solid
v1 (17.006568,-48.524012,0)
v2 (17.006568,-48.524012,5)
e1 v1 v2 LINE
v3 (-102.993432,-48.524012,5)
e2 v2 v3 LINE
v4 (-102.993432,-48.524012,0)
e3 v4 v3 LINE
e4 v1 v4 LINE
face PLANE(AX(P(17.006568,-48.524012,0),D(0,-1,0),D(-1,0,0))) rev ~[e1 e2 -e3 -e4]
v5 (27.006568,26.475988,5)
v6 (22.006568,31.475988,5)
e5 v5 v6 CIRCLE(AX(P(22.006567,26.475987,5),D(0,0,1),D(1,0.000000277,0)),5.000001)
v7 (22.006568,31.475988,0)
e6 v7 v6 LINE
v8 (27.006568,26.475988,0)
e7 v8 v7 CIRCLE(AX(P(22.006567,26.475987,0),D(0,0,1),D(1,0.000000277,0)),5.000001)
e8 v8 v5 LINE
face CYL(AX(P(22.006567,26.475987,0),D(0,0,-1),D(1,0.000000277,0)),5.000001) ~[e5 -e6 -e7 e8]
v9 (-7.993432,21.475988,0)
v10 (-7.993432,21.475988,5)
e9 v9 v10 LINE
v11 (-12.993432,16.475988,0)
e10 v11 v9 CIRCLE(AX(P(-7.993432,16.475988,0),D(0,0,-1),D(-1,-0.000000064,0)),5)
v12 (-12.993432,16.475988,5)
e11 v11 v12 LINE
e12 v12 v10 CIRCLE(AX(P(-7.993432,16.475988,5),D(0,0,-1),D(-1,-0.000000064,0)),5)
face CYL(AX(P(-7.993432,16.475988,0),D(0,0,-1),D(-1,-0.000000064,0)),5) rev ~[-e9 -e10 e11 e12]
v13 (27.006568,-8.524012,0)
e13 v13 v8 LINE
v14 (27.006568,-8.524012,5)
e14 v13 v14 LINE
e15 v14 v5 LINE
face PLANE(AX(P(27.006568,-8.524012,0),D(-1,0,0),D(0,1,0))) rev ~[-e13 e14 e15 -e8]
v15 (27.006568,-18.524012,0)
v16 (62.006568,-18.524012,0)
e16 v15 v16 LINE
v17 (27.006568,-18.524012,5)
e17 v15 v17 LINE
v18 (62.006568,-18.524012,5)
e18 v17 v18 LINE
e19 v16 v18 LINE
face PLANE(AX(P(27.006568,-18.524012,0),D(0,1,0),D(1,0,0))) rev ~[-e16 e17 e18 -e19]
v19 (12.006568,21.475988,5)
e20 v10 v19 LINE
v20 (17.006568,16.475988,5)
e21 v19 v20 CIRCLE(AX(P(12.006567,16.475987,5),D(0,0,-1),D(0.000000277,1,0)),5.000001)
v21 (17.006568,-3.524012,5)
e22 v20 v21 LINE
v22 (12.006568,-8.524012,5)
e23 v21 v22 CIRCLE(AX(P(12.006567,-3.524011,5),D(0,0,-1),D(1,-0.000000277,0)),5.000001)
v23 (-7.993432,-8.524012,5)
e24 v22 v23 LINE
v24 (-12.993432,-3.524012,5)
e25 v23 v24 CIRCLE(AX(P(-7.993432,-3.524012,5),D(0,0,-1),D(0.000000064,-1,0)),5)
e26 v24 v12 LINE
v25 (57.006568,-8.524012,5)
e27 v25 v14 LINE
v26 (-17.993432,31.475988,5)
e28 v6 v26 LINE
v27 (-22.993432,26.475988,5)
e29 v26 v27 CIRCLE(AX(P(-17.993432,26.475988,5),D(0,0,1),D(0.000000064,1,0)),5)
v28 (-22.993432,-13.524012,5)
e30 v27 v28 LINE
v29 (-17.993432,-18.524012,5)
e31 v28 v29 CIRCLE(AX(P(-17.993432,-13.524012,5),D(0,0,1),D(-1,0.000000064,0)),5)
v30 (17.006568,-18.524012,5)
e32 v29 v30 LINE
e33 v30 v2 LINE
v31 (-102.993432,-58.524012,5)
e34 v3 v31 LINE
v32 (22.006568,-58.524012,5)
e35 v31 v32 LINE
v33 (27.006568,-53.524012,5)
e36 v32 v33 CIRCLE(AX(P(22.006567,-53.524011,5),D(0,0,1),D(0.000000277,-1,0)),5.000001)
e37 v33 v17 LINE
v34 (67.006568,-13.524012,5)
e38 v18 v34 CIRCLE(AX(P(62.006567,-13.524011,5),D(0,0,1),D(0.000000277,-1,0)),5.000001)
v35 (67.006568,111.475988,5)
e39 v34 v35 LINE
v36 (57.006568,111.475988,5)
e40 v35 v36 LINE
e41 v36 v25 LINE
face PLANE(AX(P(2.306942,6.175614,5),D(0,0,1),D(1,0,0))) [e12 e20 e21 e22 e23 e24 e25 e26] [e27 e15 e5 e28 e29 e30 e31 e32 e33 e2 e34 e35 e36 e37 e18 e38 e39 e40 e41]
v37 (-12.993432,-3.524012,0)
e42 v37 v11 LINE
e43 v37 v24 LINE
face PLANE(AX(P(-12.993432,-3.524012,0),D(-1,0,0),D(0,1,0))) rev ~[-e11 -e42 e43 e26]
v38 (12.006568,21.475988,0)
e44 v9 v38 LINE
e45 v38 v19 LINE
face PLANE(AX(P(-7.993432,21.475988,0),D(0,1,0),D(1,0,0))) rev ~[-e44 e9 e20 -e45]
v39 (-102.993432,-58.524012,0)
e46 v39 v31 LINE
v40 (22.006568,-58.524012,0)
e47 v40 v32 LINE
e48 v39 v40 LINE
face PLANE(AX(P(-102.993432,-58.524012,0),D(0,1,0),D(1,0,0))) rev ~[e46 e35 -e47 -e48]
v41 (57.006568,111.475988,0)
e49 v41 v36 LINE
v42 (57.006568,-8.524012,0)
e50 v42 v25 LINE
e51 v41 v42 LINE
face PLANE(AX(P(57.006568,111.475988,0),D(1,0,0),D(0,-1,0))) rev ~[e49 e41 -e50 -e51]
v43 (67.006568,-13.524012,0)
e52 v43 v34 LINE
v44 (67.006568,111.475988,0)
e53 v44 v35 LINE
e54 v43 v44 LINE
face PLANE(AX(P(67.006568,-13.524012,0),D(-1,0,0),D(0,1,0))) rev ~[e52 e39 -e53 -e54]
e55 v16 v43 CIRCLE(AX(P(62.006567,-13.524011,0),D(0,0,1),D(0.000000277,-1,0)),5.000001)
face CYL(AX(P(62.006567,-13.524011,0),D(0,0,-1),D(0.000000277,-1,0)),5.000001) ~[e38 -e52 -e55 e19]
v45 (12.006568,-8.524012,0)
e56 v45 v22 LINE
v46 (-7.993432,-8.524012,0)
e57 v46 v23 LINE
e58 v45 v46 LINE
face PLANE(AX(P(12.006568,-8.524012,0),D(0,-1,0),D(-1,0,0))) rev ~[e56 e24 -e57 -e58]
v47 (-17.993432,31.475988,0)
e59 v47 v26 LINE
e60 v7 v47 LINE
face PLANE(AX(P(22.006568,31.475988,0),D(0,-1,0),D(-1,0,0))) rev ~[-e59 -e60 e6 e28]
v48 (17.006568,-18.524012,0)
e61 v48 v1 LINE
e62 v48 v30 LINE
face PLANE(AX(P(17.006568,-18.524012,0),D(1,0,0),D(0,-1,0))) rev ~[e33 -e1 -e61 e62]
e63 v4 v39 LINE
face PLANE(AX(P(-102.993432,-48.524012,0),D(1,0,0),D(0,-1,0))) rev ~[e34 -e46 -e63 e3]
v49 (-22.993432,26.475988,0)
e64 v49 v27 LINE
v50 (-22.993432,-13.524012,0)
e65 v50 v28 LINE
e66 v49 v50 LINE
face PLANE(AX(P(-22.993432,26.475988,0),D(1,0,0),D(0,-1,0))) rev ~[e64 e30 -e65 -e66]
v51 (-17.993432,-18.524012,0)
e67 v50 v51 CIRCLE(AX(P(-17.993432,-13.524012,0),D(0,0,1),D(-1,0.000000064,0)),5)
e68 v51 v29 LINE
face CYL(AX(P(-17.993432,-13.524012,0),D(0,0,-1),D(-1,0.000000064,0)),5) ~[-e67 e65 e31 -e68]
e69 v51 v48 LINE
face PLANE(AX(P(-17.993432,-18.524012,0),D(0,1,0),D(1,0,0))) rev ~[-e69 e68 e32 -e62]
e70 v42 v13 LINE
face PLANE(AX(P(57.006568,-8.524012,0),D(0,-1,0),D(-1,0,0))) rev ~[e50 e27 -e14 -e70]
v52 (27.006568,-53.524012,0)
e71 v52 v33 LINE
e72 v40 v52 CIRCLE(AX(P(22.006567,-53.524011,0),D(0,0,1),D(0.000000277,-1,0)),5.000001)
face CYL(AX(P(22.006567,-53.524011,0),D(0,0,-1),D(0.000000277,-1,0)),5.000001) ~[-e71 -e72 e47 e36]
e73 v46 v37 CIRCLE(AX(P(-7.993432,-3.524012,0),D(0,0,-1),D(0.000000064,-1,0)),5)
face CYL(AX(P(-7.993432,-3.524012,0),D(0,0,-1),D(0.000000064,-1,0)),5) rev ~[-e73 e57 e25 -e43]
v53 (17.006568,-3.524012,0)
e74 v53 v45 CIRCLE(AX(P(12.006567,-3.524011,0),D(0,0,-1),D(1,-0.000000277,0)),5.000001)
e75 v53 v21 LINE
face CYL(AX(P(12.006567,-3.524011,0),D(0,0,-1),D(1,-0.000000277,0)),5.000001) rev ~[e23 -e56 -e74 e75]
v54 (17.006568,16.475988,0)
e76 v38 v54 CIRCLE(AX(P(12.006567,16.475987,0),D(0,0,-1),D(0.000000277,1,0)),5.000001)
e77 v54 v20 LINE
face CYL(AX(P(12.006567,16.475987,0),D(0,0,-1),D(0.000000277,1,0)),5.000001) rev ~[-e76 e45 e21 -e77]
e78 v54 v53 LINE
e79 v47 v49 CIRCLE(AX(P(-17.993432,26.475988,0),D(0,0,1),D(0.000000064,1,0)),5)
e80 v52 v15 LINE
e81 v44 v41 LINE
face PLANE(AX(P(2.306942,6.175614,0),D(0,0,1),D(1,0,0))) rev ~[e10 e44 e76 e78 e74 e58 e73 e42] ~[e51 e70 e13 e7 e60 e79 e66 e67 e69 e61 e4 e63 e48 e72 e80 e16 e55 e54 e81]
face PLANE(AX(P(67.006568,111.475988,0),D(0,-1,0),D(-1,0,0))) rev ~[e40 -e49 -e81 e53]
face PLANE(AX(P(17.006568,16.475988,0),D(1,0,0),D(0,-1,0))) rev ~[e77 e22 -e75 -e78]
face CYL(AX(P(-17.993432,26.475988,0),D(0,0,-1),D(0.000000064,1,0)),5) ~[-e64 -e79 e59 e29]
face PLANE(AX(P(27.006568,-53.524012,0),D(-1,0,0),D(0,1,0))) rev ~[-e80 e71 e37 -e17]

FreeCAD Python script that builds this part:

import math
import FreeCAD as App
import Part
import Sketcher
from FreeCAD import Vector

doc = App.newDocument("Part")
body = doc.addObject("PartDesign::Body", "Body")

# Sketch on XY plane
sketch1 = body.newObject("Sketcher::SketchObject", "Sketch")
sketch1.AttachmentSupport = (doc.getObject("XY_Plane"), [""])
sketch1.MapMode = "FlatFace"
sketch1.addGeometry([
    Part.LineSegment(Vector(22, 31.5, 0), Vector(-18, 31.5, 0)),  # 0
    Part.ArcOfCircle(Part.Circle(Vector(-18, 26.5, 0), Vector(0, 0, 1), 5), math.radians(90), math.radians(180)),  # 1
    Part.LineSegment(Vector(-23, 26.5, 0), Vector(-23, -13.5, 0)),  # 2
    Part.ArcOfCircle(Part.Circle(Vector(-18, -13.5, 0), Vector(0, 0, 1), 5), math.radians(180), math.radians(270)),  # 3
    Part.LineSegment(Vector(-18, -18.5, 0), Vector(17, -18.5, 0)),  # 4
    Part.LineSegment(Vector(17, -18.5, 0), Vector(17, -48.5, 0)),  # 5
    Part.LineSegment(Vector(17, -48.5, 0), Vector(-103, -48.5, 0)),  # 6
    Part.LineSegment(Vector(-103, -48.5, 0), Vector(-103, -58.5, 0)),  # 7
    Part.LineSegment(Vector(-103, -58.5, 0), Vector(22, -58.5, 0)),  # 8
    Part.ArcOfCircle(Part.Circle(Vector(22, -53.5, 0), Vector(0, 0, 1), 5), math.radians(-90), math.radians(0)),  # 9
    Part.LineSegment(Vector(27, -53.5, 0), Vector(27, -18.5, 0)),  # 10
    Part.LineSegment(Vector(27, -18.5, 0), Vector(62, -18.5, 0)),  # 11
    Part.ArcOfCircle(Part.Circle(Vector(62, -13.5, 0), Vector(0, 0, 1), 5), math.radians(-90), math.radians(0)),  # 12
    Part.LineSegment(Vector(67, -13.5, 0), Vector(67, 111.5, 0)),  # 13
    Part.LineSegment(Vector(67, 111.5, 0), Vector(57, 111.5, 0)),  # 14
    Part.LineSegment(Vector(57, 111.5, 0), Vector(57, -8.5, 0)),  # 15
    Part.LineSegment(Vector(57, -8.5, 0), Vector(27, -8.5, 0)),  # 16
    Part.LineSegment(Vector(27, -8.5, 0), Vector(27, 26.5, 0)),  # 17
    Part.ArcOfCircle(Part.Circle(Vector(22, 26.5, 0), Vector(0, 0, 1), 5), math.radians(0), math.radians(90)),  # 18
    Part.LineSegment(Vector(-13, -3.5, 0), Vector(-13, 16.5, 0)),  # 19
    Part.ArcOfCircle(Part.Circle(Vector(-8, 16.5, 0), Vector(0, 0, 1), 5), math.radians(90), math.radians(180)),  # 20
    Part.LineSegment(Vector(-8, 21.5, 0), Vector(12, 21.5, 0)),  # 21
    Part.ArcOfCircle(Part.Circle(Vector(12, 16.5, 0), Vector(0, 0, 1), 5), math.radians(0), math.radians(90)),  # 22
    Part.LineSegment(Vector(17, 16.5, 0), Vector(17, -3.5, 0)),  # 23
    Part.ArcOfCircle(Part.Circle(Vector(12, -3.5, 0), Vector(0, 0, 1), 5), math.radians(-90), math.radians(0)),  # 24
    Part.LineSegment(Vector(12, -8.5, 0), Vector(-8, -8.5, 0)),  # 25
    Part.ArcOfCircle(Part.Circle(Vector(-8, -3.5, 0), Vector(0, 0, 1), 5), math.radians(180), math.radians(270)),  # 26
], False)
sketch1.addConstraint([
    Sketcher.Constraint("Tangent", 0, 2, 1, 1),
    Sketcher.Constraint("Tangent", 1, 2, 2, 1),
    Sketcher.Constraint("Tangent", 2, 2, 3, 1),
    Sketcher.Constraint("Tangent", 3, 2, 4, 1),
    Sketcher.Constraint("Coincident", 4, 2, 5, 1),
    Sketcher.Constraint("Coincident", 5, 2, 6, 1),
    Sketcher.Constraint("Coincident", 6, 2, 7, 1),
    Sketcher.Constraint("Coincident", 7, 2, 8, 1),
    Sketcher.Constraint("Tangent", 8, 2, 9, 1),
    Sketcher.Constraint("Tangent", 9, 2, 10, 1),
    Sketcher.Constraint("Coincident", 10, 2, 11, 1),
    Sketcher.Constraint("Tangent", 11, 2, 12, 1),
    Sketcher.Constraint("Tangent", 12, 2, 13, 1),
    Sketcher.Constraint("Coincident", 13, 2, 14, 1),
    Sketcher.Constraint("Coincident", 14, 2, 15, 1),
    Sketcher.Constraint("Coincident", 15, 2, 16, 1),
    Sketcher.Constraint("Coincident", 16, 2, 17, 1),
    Sketcher.Constraint("Tangent", 17, 2, 18, 1),
    Sketcher.Constraint("Tangent", 18, 2, 0, 1),
    Sketcher.Constraint("Tangent", 19, 2, 20, 2),
    Sketcher.Constraint("Tangent", 20, 1, 21, 1),
    Sketcher.Constraint("Tangent", 21, 2, 22, 2),
    Sketcher.Constraint("Tangent", 22, 1, 23, 1),
    Sketcher.Constraint("Tangent", 23, 2, 24, 2),
    Sketcher.Constraint("Tangent", 24, 1, 25, 1),
    Sketcher.Constraint("Tangent", 25, 2, 26, 2),
    Sketcher.Constraint("Tangent", 26, 1, 19, 1),
    Sketcher.Constraint("Horizontal", 0),
    Sketcher.Constraint("Vertical", 2),
    Sketcher.Constraint("Horizontal", 4),
    Sketcher.Constraint("Vertical", 5),
    Sketcher.Constraint("Horizontal", 6),
    Sketcher.Constraint("Vertical", 7),
    Sketcher.Constraint("Horizontal", 8),
    Sketcher.Constraint("Vertical", 10),
    Sketcher.Constraint("Horizontal", 11),
    Sketcher.Constraint("Vertical", 13),
    Sketcher.Constraint("Horizontal", 14),
    Sketcher.Constraint("Vertical", 15),
    Sketcher.Constraint("Horizontal", 16),
    Sketcher.Constraint("Vertical", 17),
    Sketcher.Constraint("Vertical", 19),
    Sketcher.Constraint("Horizontal", 21),
    Sketcher.Constraint("Vertical", 23),
    Sketcher.Constraint("Horizontal", 25),
    Sketcher.Constraint("Equal", 1, 3),
    Sketcher.Constraint("Equal", 3, 9),
    Sketcher.Constraint("Equal", 9, 12),
    Sketcher.Constraint("Equal", 12, 18),
    Sketcher.Constraint("Equal", 18, 20),
    Sketcher.Constraint("Equal", 20, 22),
    Sketcher.Constraint("Equal", 22, 24),
    Sketcher.Constraint("Equal", 24, 26),
    Sketcher.Constraint("Horizontal", 3, 3, 12, 3),
    Sketcher.Constraint("Horizontal", 16, 2, 24, 1),
    Sketcher.Constraint("Vertical", 9, 3, 18, 3),
    Sketcher.Constraint("Vertical", 5, 2, 22, 1),
    Sketcher.Constraint("Equal", 4, 11),
    Sketcher.Constraint("Equal", 0, 2),
    Sketcher.Constraint("Equal", 16, 5),
    Sketcher.Constraint("Equal", 14, 7),
    Sketcher.Constraint("Equal", 8, 13),
    Sketcher.Constraint("Equal", 6, 15),
    Sketcher.Constraint("Equal", 25, 19),
    Sketcher.Constraint("Radius", 1, 5.0),
    Sketcher.Constraint("DistanceX", 0, 2, 0, 1, 40.0),
    Sketcher.Constraint("DistanceX", 4, 1, 4, 2, 35.0),
    Sketcher.Constraint("DistanceX", 6, 2, 6, 1, 120.0),
    Sketcher.Constraint("DistanceX", 14, 2, 14, 1, 10.0),
    Sketcher.Constraint("DistanceX", 21, 1, 21, 2, 20.0),
    Sketcher.Constraint("DistanceY", -1, 1, 1, 3, 26.475988),
    Sketcher.Constraint("DistanceX", 0, 2, -1, 1, 17.993432),
])
pad1 = body.newObject("PartDesign::Pad", "Pad")
pad1.Profile = sketch1
pad1.Length = 5

doc.recompute()
